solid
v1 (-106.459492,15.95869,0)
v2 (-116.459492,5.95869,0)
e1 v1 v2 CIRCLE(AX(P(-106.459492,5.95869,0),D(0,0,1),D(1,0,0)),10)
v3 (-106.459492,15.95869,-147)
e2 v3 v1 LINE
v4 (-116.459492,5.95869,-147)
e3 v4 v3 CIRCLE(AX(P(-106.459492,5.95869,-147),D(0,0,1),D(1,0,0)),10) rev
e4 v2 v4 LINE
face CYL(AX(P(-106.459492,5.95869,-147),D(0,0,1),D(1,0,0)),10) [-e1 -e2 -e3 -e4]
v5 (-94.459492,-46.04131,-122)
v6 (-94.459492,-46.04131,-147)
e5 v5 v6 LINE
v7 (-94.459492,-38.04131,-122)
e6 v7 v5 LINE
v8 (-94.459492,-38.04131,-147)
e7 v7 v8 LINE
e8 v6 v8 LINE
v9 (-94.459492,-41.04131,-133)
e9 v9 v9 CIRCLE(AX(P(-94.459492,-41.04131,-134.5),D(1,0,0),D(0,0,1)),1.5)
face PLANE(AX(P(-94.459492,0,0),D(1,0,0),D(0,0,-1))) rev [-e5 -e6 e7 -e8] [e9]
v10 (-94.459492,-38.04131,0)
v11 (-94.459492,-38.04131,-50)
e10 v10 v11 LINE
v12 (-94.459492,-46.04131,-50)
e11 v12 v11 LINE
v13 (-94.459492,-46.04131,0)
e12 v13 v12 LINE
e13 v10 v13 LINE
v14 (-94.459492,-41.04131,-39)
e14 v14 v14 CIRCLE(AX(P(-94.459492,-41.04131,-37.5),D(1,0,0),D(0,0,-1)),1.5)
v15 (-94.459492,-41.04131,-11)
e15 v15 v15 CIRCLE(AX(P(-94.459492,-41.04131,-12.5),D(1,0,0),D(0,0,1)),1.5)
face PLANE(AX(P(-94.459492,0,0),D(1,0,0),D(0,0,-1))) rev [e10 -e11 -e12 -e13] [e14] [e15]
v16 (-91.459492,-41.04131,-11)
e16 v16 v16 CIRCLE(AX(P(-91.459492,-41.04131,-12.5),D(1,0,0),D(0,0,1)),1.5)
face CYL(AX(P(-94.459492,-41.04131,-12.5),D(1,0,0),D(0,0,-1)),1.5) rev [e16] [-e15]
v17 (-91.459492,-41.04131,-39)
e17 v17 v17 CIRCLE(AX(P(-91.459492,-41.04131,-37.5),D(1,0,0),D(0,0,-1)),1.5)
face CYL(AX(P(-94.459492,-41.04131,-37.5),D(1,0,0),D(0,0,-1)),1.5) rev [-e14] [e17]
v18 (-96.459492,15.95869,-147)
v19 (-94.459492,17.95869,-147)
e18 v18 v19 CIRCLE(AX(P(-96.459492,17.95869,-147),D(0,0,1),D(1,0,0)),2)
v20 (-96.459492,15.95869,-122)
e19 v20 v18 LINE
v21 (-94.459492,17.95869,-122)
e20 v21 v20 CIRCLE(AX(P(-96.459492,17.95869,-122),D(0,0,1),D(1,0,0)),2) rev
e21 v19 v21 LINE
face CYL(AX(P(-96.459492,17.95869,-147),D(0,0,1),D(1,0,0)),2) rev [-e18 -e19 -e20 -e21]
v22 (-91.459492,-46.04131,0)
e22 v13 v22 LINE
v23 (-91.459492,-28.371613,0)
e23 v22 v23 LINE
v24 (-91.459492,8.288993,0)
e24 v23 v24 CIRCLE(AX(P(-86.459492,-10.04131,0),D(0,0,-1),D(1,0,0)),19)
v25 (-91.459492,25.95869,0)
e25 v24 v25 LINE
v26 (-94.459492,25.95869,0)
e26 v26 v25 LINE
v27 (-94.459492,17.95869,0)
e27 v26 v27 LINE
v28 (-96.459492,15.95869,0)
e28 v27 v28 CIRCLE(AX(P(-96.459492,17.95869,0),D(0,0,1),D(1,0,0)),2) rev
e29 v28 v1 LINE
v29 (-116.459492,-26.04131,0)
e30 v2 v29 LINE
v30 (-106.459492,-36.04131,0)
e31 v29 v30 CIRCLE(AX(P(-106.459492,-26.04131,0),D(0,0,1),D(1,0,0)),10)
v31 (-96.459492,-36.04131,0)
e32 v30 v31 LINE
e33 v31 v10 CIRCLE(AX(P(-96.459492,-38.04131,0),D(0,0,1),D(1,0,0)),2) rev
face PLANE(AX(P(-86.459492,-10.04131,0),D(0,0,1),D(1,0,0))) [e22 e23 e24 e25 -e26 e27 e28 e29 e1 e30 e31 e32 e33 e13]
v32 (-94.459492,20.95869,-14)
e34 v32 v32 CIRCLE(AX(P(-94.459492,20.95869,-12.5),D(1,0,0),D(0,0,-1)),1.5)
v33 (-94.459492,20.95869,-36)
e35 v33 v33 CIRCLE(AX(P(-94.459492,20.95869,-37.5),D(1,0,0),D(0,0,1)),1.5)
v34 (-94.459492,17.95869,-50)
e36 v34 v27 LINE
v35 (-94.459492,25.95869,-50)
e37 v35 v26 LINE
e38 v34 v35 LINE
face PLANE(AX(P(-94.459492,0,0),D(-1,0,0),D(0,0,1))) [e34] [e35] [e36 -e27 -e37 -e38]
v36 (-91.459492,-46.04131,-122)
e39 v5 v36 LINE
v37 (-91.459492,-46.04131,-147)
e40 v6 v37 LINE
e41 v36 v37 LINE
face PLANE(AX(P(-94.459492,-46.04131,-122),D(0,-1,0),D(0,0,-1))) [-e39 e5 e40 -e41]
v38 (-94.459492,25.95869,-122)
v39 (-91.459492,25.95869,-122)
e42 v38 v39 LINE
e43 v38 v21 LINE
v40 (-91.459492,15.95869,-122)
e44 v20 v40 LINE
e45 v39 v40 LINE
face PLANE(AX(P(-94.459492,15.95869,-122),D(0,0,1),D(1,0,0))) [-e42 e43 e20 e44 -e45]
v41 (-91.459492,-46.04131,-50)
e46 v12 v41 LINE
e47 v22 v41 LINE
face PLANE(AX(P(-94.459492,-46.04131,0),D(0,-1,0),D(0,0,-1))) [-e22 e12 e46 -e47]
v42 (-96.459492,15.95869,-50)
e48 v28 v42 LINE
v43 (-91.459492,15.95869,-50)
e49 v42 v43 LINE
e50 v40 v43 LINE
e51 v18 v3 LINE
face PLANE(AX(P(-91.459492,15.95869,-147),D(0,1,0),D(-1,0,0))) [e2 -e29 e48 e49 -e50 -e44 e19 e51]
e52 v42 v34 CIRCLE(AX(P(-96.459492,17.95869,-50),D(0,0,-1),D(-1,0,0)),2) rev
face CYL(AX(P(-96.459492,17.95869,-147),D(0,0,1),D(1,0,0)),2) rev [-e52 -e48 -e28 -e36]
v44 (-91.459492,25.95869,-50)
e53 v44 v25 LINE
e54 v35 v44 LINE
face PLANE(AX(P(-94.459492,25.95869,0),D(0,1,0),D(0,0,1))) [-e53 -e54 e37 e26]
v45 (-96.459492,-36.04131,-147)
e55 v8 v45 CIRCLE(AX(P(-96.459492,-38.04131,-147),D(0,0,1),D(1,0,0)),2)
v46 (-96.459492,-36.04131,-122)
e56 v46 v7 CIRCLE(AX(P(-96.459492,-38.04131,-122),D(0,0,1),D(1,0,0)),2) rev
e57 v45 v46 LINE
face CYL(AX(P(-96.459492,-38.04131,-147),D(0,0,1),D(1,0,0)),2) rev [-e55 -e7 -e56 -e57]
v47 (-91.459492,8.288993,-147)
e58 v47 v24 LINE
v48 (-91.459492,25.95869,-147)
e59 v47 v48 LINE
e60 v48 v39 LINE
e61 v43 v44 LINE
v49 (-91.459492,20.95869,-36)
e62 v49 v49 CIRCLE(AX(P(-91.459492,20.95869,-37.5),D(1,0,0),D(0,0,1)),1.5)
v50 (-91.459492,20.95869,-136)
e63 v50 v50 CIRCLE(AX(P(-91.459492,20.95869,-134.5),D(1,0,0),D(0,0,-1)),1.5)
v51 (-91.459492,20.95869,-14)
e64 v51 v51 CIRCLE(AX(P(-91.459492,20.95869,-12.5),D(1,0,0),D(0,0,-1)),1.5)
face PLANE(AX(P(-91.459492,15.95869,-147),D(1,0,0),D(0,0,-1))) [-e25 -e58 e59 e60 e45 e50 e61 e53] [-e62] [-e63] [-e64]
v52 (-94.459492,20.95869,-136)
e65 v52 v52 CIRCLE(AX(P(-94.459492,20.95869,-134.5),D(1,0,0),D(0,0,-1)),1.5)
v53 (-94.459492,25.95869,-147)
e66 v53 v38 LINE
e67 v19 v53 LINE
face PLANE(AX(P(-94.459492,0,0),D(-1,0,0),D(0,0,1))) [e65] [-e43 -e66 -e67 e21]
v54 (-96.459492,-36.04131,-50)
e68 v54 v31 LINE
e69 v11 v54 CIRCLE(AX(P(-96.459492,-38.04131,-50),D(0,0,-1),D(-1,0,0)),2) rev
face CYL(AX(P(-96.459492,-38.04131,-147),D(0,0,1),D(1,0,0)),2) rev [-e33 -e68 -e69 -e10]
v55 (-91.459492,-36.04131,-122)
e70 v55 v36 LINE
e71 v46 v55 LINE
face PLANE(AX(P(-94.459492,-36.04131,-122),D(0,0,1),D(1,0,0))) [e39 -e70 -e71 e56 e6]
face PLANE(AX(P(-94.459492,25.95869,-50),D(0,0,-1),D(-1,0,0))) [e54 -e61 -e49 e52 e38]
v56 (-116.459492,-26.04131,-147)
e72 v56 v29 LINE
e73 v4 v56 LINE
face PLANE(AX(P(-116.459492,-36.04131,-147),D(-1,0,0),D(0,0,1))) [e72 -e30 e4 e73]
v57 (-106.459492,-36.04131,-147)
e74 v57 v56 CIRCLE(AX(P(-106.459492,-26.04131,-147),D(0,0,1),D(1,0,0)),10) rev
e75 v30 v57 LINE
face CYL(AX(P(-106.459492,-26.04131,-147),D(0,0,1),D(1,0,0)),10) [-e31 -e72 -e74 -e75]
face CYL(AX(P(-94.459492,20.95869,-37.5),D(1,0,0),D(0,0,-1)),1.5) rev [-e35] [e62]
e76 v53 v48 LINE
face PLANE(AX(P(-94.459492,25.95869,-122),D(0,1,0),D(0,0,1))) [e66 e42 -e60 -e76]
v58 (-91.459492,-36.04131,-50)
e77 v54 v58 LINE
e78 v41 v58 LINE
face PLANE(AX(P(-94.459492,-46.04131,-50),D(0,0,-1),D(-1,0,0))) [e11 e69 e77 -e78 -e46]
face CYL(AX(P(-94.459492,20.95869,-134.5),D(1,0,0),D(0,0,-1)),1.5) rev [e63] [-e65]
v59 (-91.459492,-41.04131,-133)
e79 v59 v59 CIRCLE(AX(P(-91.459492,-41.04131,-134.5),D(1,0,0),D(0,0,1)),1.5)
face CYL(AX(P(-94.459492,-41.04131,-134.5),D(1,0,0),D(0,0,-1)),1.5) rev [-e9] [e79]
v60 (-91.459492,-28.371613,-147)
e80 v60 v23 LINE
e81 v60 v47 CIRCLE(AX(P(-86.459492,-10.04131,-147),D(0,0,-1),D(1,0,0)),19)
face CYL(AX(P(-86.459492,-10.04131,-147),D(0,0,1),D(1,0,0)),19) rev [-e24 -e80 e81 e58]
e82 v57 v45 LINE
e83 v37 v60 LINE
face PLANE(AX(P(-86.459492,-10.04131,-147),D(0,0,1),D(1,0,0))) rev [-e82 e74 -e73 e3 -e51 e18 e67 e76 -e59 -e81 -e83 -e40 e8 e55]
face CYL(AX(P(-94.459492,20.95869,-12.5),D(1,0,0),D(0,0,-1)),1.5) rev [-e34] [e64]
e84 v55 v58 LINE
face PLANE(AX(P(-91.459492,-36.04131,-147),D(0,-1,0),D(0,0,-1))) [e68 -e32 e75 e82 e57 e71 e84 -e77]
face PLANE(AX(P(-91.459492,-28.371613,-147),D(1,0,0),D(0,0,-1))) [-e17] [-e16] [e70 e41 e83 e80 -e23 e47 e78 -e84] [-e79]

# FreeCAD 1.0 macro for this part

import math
import FreeCAD as App
import Part
import Sketcher
from FreeCAD import Vector


def edges_at(feature, points):
    """Names of the edges that pass closest to the given points."""
    edges = feature.Shape.Edges
    near = lambda p: min(range(len(edges)), key=lambda i: edges[i].distToShape(Part.Vertex(*p))[0])
    return sorted({f"Edge{near(p) + 1}" for p in points})

doc = App.newDocument("Part")
body = doc.addObject("PartDesign::Body", "Body")

# Sketch on XY plane
sketch1 = body.newObject("Sketcher::SketchObject", "Sketch")
sketch1.AttachmentSupport = (doc.getObject("XY_Plane"), [""])
sketch1.MapMode = "FlatFace"
sketch1.addGeometry(Part.LineSegment(Vector(-91, 16, 0), Vector(-116, 16, 0)), False)
sketch1.addGeometry(Part.LineSegment(Vector(-116, 16, 0), Vector(-116, -36, 0)), False)
sketch1.addGeometry(Part.LineSegment(Vector(-116, -36, 0), Vector(-91, -36, 0)), False)
sketch1.addGeometry(Part.LineSegment(Vector(-91, -36, 0), Vector(-91, -28, 0)), False)
sketch1.addGeometry(Part.ArcOfCircle(Part.Circle(Vector(-86, -10, 0), Vector(0, 0, 1), 19), math.radians(105), math.radians(255)), False)
sketch1.addGeometry(Part.LineSegment(Vector(-91, 8, 0), Vector(-91, 16, 0)), False)
sketch1.addConstraint(Sketcher.Constraint("Coincident", 0, 2, 1, 1))
sketch1.addConstraint(Sketcher.Constraint("Coincident", 1, 2, 2, 1))
sketch1.addConstraint(Sketcher.Constraint("Coincident", 2, 2, 3, 1))
sketch1.addConstraint(Sketcher.Constraint("Coincident", 3, 2, 4, 2))
sketch1.addConstraint(Sketcher.Constraint("Coincident", 4, 1, 5, 1))
sketch1.addConstraint(Sketcher.Constraint("Coincident", 5, 2, 0, 1))
sketch1.addConstraint(Sketcher.Constraint("Horizontal", 0))
sketch1.addConstraint(Sketcher.Constraint("Vertical", 1))
sketch1.addConstraint(Sketcher.Constraint("Horizontal", 2))
sketch1.addConstraint(Sketcher.Constraint("Vertical", 3))
sketch1.addConstraint(Sketcher.Constraint("Vertical", 5))
sketch1.addConstraint(Sketcher.Constraint("Vertical", 3, 2, 4, 1))
sketch1.addConstraint(Sketcher.Constraint("Equal", 3, 5))
sketch1.addConstraint(Sketcher.Constraint("Radius", 4, 19.0))
sketch1.addConstraint(Sketcher.Constraint("DistanceX", 0, 2, 0, 1, 25.0))
sketch1.addConstraint(Sketcher.Constraint("DistanceY", 1, 2, 1, 1, 52.0))
sketch1.addConstraint(Sketcher.Constraint("DistanceX", 0, 2, 4, 3, 30.0))
sketch1.addConstraint(Sketcher.Constraint("DistanceX", 4, 3, -1, 1, 86.459492))
sketch1.addConstraint(Sketcher.Constraint("DistanceY", 4, 3, -1, 1, 10.04131))
pad1 = body.newObject("PartDesign::Pad", "Pad")
pad1.Profile = sketch1
pad1.Length = 147
pad1.Reversed = True

# Sketch on YZ plane
sketch2 = body.newObject("Sketcher::SketchObject", "Sketch001")
sketch2.AttachmentSupport = (doc.getObject("YZ_Plane"), [""])
sketch2.MapMode = "FlatFace"
sketch2.AttachmentOffset = App.Placement(Vector(0, 0, -91.459492), App.Rotation())
sketch2.addGeometry(Part.LineSegment(Vector(26, 0, 0), Vector(16, 0, 0)), False)
sketch2.addGeometry(Part.LineSegment(Vector(16, 0, 0), Vector(16, -50, 0)), False)
sketch2.addGeometry(Part.LineSegment(Vector(16, -50, 0), Vector(26, -50, 0)), False)
sketch2.addGeometry(Part.LineSegment(Vector(26, -50, 0), Vector(26, 0, 0)), False)
sketch2.addGeometry(Part.Circle(Vector(21, -12.5, 0), Vector(0, 0, 1), 1.5), False)
sketch2.addGeometry(Part.Circle(Vector(21, -37.5, 0), Vector(0, 0, 1), 1.5), False)
sketch2.addGeometry(Part.LineSegment(Vector(26, -122, 0), Vector(16, -122, 0)), False)
sketch2.addGeometry(Part.LineSegment(Vector(16, -122, 0), Vector(16, -147, 0)), False)
sketch2.addGeometry(Part.LineSegment(Vector(16, -147, 0), Vector(26, -147, 0)), False)
sketch2.addGeometry(Part.LineSegment(Vector(26, -147, 0), Vector(26, -122, 0)), False)
sketch2.addGeometry(Part.Circle(Vector(21, -134.5, 0), Vector(0, 0, 1), 1.5), False)
sketch2.addGeometry(Part.LineSegment(Vector(-36, 0, 0), Vector(-46, 0, 0)), False)
sketch2.addGeometry(Part.LineSegment(Vector(-46, 0, 0), Vector(-46, -50, 0)), False)
sketch2.addGeometry(Part.LineSegment(Vector(-46, -50, 0), Vector(-36, -50, 0)), False)
sketch2.addGeometry(Part.LineSegment(Vector(-36, -50, 0), Vector(-36, 0, 0)), False)
sketch2.addGeometry(Part.Circle(Vector(-41, -12.5, 0), Vector(0, 0, 1), 1.5), False)
sketch2.addGeometry(Part.Circle(Vector(-41, -37.5, 0), Vector(0, 0, 1), 1.5), False)
sketch2.addGeometry(Part.LineSegment(Vector(-36, -122, 0), Vector(-46, -122, 0)), False)
sketch2.addGeometry(Part.LineSegment(Vector(-46, -122, 0), Vector(-46, -147, 0)), False)
sketch2.addGeometry(Part.LineSegment(Vector(-46, -147, 0), Vector(-36, -147, 0)), False)
sketch2.addGeometry(Part.LineSegment(Vector(-36, -147, 0), Vector(-36, -122, 0)), False)
sketch2.addGeometry(Part.Circle(Vector(-41, -134.5, 0), Vector(0, 0, 1), 1.5), False)
sketch2.addConstraint(Sketcher.Constraint("Coincident", 0, 2, 1, 1))
sketch2.addConstraint(Sketcher.Constraint("Coincident", 1, 2, 2, 1))
sketch2.addConstraint(Sketcher.Constraint("Coincident", 2, 2, 3, 1))
sketch2.addConstraint(Sketcher.Constraint("Coincident", 3, 2, 0, 1))
sketch2.addConstraint(Sketcher.Constraint("Coincident", 6, 2, 7, 1))
sketch2.addConstraint(Sketcher.Constraint("Coincident", 7, 2, 8, 1))
sketch2.addConstraint(Sketcher.Constraint("Coincident", 8, 2, 9, 1))
sketch2.addConstraint(Sketcher.Constraint("Coincident", 9, 2, 6, 1))
sketch2.addConstraint(Sketcher.Constraint("Coincident", 11, 2, 12, 1))
sketch2.addConstraint(Sketcher.Constraint("Coincident", 12, 2, 13, 1))
sketch2.addConstraint(Sketcher.Constraint("Coincident", 13, 2, 14, 1))
sketch2.addConstraint(Sketcher.Constraint("Coincident", 14, 2, 11, 1))
sketch2.addConstraint(Sketcher.Constraint("Coincident", 17, 2, 18, 1))
sketch2.addConstraint(Sketcher.Constraint("Coincident", 18, 2, 19, 1))
sketch2.addConstraint(Sketcher.Constraint("Coincident", 19, 2, 20, 1))
sketch2.addConstraint(Sketcher.Constraint("Coincident", 20, 2, 17, 1))
sketch2.addConstraint(Sketcher.Constraint("Horizontal", 0))
sketch2.addConstraint(Sketcher.Constraint("Vertical", 1))
sketch2.addConstraint(Sketcher.Constraint("Horizontal", 2))
sketch2.addConstraint(Sketcher.Constraint("Vertical", 3))
sketch2.addConstraint(Sketcher.Constraint("Horizontal", 6))
sketch2.addConstraint(Sketcher.Constraint("Vertical", 7))
sketch2.addConstraint(Sketcher.Constraint("Horizontal", 8))
sketch2.addConstraint(Sketcher.Constraint("Vertical", 9))
sketch2.addConstraint(Sketcher.Constraint("Horizontal", 11))
sketch2.addConstraint(Sketcher.Constraint("Vertical", 12))
sketch2.addConstraint(Sketcher.Constraint("Horizontal", 13))
sketch2.addConstraint(Sketcher.Constraint("Vertical", 14))
sketch2.addConstraint(Sketcher.Constraint("Horizontal", 17))
sketch2.addConstraint(Sketcher.Constraint("Vertical", 18))
sketch2.addConstraint(Sketcher.Constraint("Horizontal", 19))
sketch2.addConstraint(Sketcher.Constraint("Vertical", 20))
sketch2.addConstraint(Sketcher.Constraint("Equal", 4, 5))
sketch2.addConstraint(Sketcher.Constraint("Equal", 5, 10))
sketch2.addConstraint(Sketcher.Constraint("Equal", 10, 15))
sketch2.addConstraint(Sketcher.Constraint("Equal", 15, 16))
sketch2.addConstraint(Sketcher.Constraint("Equal", 16, 21))
sketch2.addConstraint(Sketcher.Constraint("PointOnObject", 0, 2, -1))
sketch2.addConstraint(Sketcher.Constraint("PointOnObject", 11, 2, -1))
sketch2.addConstraint(Sketcher.Constraint("Horizontal", 4, 3, 15, 3))
sketch2.addConstraint(Sketcher.Constraint("Horizontal", 5, 3, 16, 3))
sketch2.addConstraint(Sketcher.Constraint("Horizontal", 10, 3, 21, 3))
sketch2.addConstraint(Sketcher.Constraint("Horizontal", 2, 2, 12, 2))
sketch2.addConstraint(Sketcher.Constraint("Horizontal", 9, 2, 17, 2))
sketch2.addConstraint(Sketcher.Constraint("Horizontal", 8, 2, 18, 2))
sketch2.addConstraint(Sketcher.Constraint("Vertical", 4, 3, 5, 3))
sketch2.addConstraint(Sketcher.Constraint("Vertical", 5, 3, 10, 3))
sketch2.addConstraint(Sketcher.Constraint("Vertical", 15, 3, 16, 3))
sketch2.addConstraint(Sketcher.Constraint("Vertical", 16, 3, 21, 3))
sketch2.addConstraint(Sketcher.Constraint("Vertical", 1, 2, 6, 2))
sketch2.addConstraint(Sketcher.Constraint("Vertical", 3, 2, 8, 2))
sketch2.addConstraint(Sketcher.Constraint("Vertical", 12, 2, 17, 2))
sketch2.addConstraint(Sketcher.Constraint("Vertical", 14, 2, 19, 2))
sketch2.addConstraint(Sketcher.Constraint("Equal", 8, 11))
sketch2.addConstraint(Sketcher.Constraint("Diameter", 4, 3.0))
sketch2.addConstraint(Sketcher.Constraint("DistanceX", 0, 2, 0, 1, 10.0))
sketch2.addConstraint(Sketcher.Constraint("DistanceY", 1, 2, 1, 1, 50.0))
sketch2.addConstraint(Sketcher.Constraint("DistanceY", 7, 2, 7, 1, 25.0))
sketch2.addConstraint(Sketcher.Constraint("DistanceY", 6, 2, -1, 1, 122.0))
sketch2.addConstraint(Sketcher.Constraint("DistanceY", 5, 3, 4, 3, 25.0))
sketch2.addConstraint(Sketcher.Constraint("DistanceY", 10, 3, 5, 3, 97.0))
sketch2.addConstraint(Sketcher.Constraint("DistanceX", 15, 3, 4, 3, 62.0))
sketch2.addConstraint(Sketcher.Constraint("DistanceX", 0, 2, 4, 3, 5.0))
sketch2.addConstraint(Sketcher.Constraint("DistanceX", 11, 2, 15, 3, 5.0))
sketch2.addConstraint(Sketcher.Constraint("DistanceY", 4, 3, -1, 1, 12.5))
sketch2.addConstraint(Sketcher.Constraint("DistanceX", -1, 1, 4, 3, 20.95869))
pad2 = body.newObject("PartDesign::Pad", "Pad001")
pad2.Profile = sketch2
pad2.Length = 3
pad2.Reversed = True
doc.recompute()

fillet = body.newObject("PartDesign::Fillet", "Fillet")
fillet.Base = (pad2, edges_at(pad2, [(-116.459, 15.959, -73.5), (-116.459, -36.041, -73.5)]))
fillet.Radius = 10
doc.recompute()

fillet2 = body.newObject("PartDesign::Fillet", "Fillet001")
fillet2.Base = (fillet, edges_at(fillet, [
    (-94.459, 15.959, -25),
    (-94.459, 15.959, -134.5),
    (-94.459, -36.041, -25),
    (-94.459, -36.041, -134.5),
]))
fillet2.Radius = 2

doc.recompute()
